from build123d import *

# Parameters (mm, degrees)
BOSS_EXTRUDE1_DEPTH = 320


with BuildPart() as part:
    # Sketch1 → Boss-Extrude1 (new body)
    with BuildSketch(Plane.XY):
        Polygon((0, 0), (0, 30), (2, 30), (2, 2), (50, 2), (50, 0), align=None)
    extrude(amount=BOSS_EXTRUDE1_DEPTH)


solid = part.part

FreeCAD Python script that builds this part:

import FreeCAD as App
import Part
import Sketcher
from FreeCAD import Vector
Q = App.Units.Quantity

doc = App.newDocument("Part")
body = doc.addObject("PartDesign::Body", "Body")

# Sketch on XY plane
sketch1 = doc.addObject("Sketcher::SketchObject", "Sketch")
body.addObject(sketch1)
sketch1.AttachmentSupport = (doc.XY_Plane, [""])
sketch1.MapMode = "FlatFace"
sketch1.addGeometry([
    Part.LineSegment(Vector(0, 30, 0), Vector(0, 0, 0)),  # 0
    Part.LineSegment(Vector(0, 0, 0), Vector(50, 0, 0)),  # 1
    Part.LineSegment(Vector(50, 0, 0), Vector(50, 2, 0)),  # 2
    Part.LineSegment(Vector(50, 2, 0), Vector(2, 2, 0)),  # 3
    Part.LineSegment(Vector(2, 2, 0), Vector(2, 30, 0)),  # 4
    Part.LineSegment(Vector(2, 30, 0), Vector(0, 30, 0)),  # 5
], False)
sketch1.addConstraint([
    Sketcher.Constraint("Coincident", 0, 2, 1, 1),
    Sketcher.Constraint("Coincident", 1, 2, 2, 1),
    Sketcher.Constraint("Coincident", 2, 2, 3, 1),
    Sketcher.Constraint("Coincident", 3, 2, 4, 1),
    Sketcher.Constraint("Coincident", 4, 2, 5, 1),
    Sketcher.Constraint("Coincident", 5, 2, 0, 1),
    Sketcher.Constraint("Vertical", 0),
    Sketcher.Constraint("Horizontal", 1),
    Sketcher.Constraint("Vertical", 2),
    Sketcher.Constraint("Horizontal", 3),
    Sketcher.Constraint("Vertical", 4),
    Sketcher.Constraint("Horizontal", 5),
    Sketcher.Constraint("Coincident", 0, 2, -1, 1),
    Sketcher.Constraint("Equal", 5, 2),
    Sketcher.Constraint("DistanceX", 1, 1, 1, 2, Q("50 mm")),
    Sketcher.Constraint("DistanceX", 3, 2, 3, 1, Q("48 mm")),
    Sketcher.Constraint("DistanceY", 0, 2, 0, 1, Q("30 mm")),
])
pad1 = doc.addObject("PartDesign::Pad", "Pad")
body.addObject(pad1)
pad1.Profile = sketch1
pad1.Length = 320

doc.recompute()
